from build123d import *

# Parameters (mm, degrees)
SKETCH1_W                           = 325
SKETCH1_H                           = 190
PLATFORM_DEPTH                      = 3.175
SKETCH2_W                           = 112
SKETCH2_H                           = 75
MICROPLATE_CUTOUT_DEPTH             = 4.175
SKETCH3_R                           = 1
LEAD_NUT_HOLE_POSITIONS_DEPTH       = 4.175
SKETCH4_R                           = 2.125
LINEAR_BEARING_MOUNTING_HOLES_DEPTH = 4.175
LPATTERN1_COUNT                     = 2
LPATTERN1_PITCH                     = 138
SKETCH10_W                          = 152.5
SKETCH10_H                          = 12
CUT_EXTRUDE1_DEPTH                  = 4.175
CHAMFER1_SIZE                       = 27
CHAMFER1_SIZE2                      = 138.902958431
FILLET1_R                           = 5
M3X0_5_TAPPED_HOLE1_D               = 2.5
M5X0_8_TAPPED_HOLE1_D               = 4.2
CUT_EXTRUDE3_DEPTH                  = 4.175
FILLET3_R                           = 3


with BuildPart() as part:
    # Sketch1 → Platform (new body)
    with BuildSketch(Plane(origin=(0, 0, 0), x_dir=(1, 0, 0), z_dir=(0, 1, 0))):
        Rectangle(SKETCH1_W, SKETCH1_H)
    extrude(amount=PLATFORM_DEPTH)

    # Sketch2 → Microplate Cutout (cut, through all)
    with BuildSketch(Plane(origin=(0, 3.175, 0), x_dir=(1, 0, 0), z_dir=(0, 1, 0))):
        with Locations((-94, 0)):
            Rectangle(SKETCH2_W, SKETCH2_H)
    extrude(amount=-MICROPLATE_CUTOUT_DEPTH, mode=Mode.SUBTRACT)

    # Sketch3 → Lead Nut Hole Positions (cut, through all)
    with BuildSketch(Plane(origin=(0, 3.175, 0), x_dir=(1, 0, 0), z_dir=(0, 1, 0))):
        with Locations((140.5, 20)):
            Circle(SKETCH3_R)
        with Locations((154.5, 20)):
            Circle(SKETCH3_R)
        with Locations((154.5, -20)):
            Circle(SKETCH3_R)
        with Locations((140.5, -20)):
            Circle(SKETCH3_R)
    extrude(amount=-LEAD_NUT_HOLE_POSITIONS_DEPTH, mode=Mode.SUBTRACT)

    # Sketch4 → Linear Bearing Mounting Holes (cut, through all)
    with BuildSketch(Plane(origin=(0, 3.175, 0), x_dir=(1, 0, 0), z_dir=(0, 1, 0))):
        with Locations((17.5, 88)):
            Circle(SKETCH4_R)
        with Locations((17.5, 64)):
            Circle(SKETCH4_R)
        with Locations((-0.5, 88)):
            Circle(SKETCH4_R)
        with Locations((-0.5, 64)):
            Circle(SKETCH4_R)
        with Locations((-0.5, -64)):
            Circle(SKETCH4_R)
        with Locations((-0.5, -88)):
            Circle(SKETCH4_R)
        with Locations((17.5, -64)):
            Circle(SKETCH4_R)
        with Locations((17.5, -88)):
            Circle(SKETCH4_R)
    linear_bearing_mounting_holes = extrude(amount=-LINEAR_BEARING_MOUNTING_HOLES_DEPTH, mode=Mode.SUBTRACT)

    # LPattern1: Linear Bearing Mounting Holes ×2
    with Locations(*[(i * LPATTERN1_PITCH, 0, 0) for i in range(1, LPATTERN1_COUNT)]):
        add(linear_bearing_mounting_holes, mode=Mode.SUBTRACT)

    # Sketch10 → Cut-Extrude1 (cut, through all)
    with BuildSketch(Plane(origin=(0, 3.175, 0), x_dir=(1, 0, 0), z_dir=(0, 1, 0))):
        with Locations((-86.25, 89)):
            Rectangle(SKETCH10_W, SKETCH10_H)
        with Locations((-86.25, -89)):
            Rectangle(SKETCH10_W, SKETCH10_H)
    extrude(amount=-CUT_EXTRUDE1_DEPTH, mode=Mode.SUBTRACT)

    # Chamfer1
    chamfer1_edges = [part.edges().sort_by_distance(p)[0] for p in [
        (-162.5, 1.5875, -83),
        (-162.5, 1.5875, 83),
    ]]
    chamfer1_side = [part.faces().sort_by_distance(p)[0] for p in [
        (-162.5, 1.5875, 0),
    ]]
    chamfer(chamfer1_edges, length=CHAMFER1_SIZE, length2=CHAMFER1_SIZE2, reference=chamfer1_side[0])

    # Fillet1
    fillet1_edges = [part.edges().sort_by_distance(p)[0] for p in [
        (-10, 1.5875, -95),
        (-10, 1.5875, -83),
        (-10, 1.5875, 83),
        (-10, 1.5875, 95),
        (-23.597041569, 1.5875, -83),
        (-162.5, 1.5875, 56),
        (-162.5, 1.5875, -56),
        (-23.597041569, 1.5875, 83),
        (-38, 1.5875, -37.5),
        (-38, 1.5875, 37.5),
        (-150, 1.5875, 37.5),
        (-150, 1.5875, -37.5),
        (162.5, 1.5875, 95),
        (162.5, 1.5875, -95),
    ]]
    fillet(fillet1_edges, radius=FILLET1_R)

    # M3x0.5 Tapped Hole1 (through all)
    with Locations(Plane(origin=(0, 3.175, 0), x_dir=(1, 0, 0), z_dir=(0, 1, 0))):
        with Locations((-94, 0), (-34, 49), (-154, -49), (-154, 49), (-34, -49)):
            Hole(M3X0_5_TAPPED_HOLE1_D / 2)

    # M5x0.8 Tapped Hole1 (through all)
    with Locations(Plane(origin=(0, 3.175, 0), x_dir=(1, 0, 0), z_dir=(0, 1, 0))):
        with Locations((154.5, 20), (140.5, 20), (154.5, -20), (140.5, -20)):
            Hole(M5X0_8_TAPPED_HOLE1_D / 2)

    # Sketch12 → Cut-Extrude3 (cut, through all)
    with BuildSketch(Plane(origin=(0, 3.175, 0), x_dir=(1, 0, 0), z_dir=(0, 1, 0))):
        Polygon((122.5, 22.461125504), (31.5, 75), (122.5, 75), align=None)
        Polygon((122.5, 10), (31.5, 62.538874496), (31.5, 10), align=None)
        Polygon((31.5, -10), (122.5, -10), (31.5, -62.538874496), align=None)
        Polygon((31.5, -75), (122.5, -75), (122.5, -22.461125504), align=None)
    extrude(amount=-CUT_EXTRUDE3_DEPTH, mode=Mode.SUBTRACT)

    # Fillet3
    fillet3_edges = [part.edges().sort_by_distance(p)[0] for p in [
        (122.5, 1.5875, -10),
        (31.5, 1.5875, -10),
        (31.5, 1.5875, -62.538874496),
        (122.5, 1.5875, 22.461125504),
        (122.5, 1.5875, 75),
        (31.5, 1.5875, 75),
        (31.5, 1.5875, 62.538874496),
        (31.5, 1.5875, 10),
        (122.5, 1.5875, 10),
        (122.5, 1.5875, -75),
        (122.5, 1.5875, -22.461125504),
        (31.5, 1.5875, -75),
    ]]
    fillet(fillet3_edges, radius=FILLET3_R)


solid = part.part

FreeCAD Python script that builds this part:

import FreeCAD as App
import Part
import Sketcher

V = App.Vector
Q = App.Units.Quantity


def edges_at(feature, points):
    """Names of the edges that pass closest to the given points."""
    edges = feature.Shape.Edges
    near = lambda p: min(range(len(edges)), key=lambda i: edges[i].distToShape(Part.Vertex(*p))[0])
    return sorted({f"Edge{near(p) + 1}" for p in points})

doc = App.newDocument("Part")
body = doc.addObject("PartDesign::Body", "Body")

# Sketch on XZ plane
sketch1 = body.newObject("Sketcher::SketchObject", "Sketch")
sketch1.AttachmentSupport = (doc.getObject("XZ_Plane"), [""])
sketch1.MapMode = "FlatFace"
sketch1.addGeometry(Part.LineSegment(V(-162, -95, 0), V(-162, 95, 0)), False)
sketch1.addGeometry(Part.LineSegment(V(-162, 95, 0), V(162, 95, 0)), False)
sketch1.addGeometry(Part.LineSegment(V(162, 95, 0), V(162, -95, 0)), False)
sketch1.addGeometry(Part.LineSegment(V(162, -95, 0), V(-162, -95, 0)), False)
sketch1.addConstraint(Sketcher.Constraint("Coincident", 0, 2, 1, 1))
sketch1.addConstraint(Sketcher.Constraint("Coincident", 1, 2, 2, 1))
sketch1.addConstraint(Sketcher.Constraint("Coincident", 2, 2, 3, 1))
sketch1.addConstraint(Sketcher.Constraint("Coincident", 3, 2, 0, 1))
sketch1.addConstraint(Sketcher.Constraint("Vertical", 0))
sketch1.addConstraint(Sketcher.Constraint("Horizontal", 1))
sketch1.addConstraint(Sketcher.Constraint("Vertical", 2))
sketch1.addConstraint(Sketcher.Constraint("Horizontal", 3))
sketch1.addConstraint(Sketcher.Constraint("Symmetric", 0, 2, 2, 2, -1, 1))
sketch1.addConstraint(Sketcher.Constraint("DistanceX", 1, 1, 1, 2, 325.0))
sketch1.addConstraint(Sketcher.Constraint("DistanceY", 0, 1, 0, 2, 190.0))
pad1 = body.newObject("PartDesign::Pad", "Pad")
pad1.Profile = sketch1
pad1.Length = 3.175
pad1.Reversed = True

# Sketch on XZ plane
sketch2 = body.newObject("Sketcher::SketchObject", "Sketch001")
sketch2.AttachmentSupport = (doc.getObject("XZ_Plane"), [""])
sketch2.MapMode = "FlatFace"
sketch2.AttachmentOffset = App.Placement(V(0, 0, -3.175), App.Rotation())
sketch2.addGeometry(Part.LineSegment(V(-150, -38, 0), V(-150, 38, 0)), False)
sketch2.addGeometry(Part.LineSegment(V(-150, 38, 0), V(-38, 38, 0)), False)
sketch2.addGeometry(Part.LineSegment(V(-38, 38, 0), V(-38, -38, 0)), False)
sketch2.addGeometry(Part.LineSegment(V(-38, -38, 0), V(-150, -38, 0)), False)
sketch2.addConstraint(Sketcher.Constraint("Coincident", 0, 2, 1, 1))
sketch2.addConstraint(Sketcher.Constraint("Coincident", 1, 2, 2, 1))
sketch2.addConstraint(Sketcher.Constraint("Coincident", 2, 2, 3, 1))
sketch2.addConstraint(Sketcher.Constraint("Coincident", 3, 2, 0, 1))
sketch2.addConstraint(Sketcher.Constraint("Vertical", 0))
sketch2.addConstraint(Sketcher.Constraint("Horizontal", 1))
sketch2.addConstraint(Sketcher.Constraint("Vertical", 2))
sketch2.addConstraint(Sketcher.Constraint("Horizontal", 3))
sketch2.addConstraint(Sketcher.Constraint("DistanceX", 1, 1, 1, 2, 112.0))
sketch2.addConstraint(Sketcher.Constraint("DistanceY", 0, 1, 0, 2, 75.0))
sketch2.addConstraint(Sketcher.Constraint("DistanceX", 0, 2, -1, 1, 150.0))
sketch2.addConstraint(Sketcher.Constraint("DistanceY", -1, 1, 0, 2, 37.5))
pocket1 = body.newObject("PartDesign::Pocket", "Pocket")
pocket1.Profile = sketch2
pocket1.Type = "ThroughAll"
pocket1.Reversed = True

# Sketch on XZ plane
sketch3 = body.newObject("Sketcher::SketchObject", "Sketch002")
sketch3.AttachmentSupport = (doc.getObject("XZ_Plane"), [""])
sketch3.MapMode = "FlatFace"
sketch3.AttachmentOffset = App.Placement(V(0, 0, -3.175), App.Rotation())
sketch3.addGeometry(Part.Circle(V(140.5, -20, 0), V(0, 0, 1), 1), False)
sketch3.addGeometry(Part.Circle(V(154.5, -20, 0), V(0, 0, 1), 1), False)
sketch3.addGeometry(Part.Circle(V(154.5, 20, 0), V(0, 0, 1), 1), False)
sketch3.addGeometry(Part.Circle(V(140.5, 20, 0), V(0, 0, 1), 1), False)
sketch3.addConstraint(Sketcher.Constraint("Equal", 0, 1))
sketch3.addConstraint(Sketcher.Constraint("Equal", 1, 2))
sketch3.addConstraint(Sketcher.Constraint("Equal", 2, 3))
sketch3.addConstraint(Sketcher.Constraint("Symmetric", 1, 3, 2, 3, -1))
sketch3.addConstraint(Sketcher.Constraint("Symmetric", 0, 3, 3, 3, -1))
sketch3.addConstraint(Sketcher.Constraint("Horizontal", 0, 3, 1, 3))
sketch3.addConstraint(Sketcher.Constraint("Diameter", 0, 2.0))
sketch3.addConstraint(Sketcher.Constraint("DistanceY", 0, 3, -1, 1, 20.0))
sketch3.addConstraint(Sketcher.Constraint("DistanceX", 0, 3, 1, 3, 14.0))
sketch3.addConstraint(Sketcher.Constraint("DistanceX", -1, 1, 0, 3, 140.5))
pocket2 = body.newObject("PartDesign::Pocket", "Pocket001")
pocket2.Profile = sketch3
pocket2.Type = "ThroughAll"
pocket2.Reversed = True

# Sketch on XZ plane
sketch4 = body.newObject("Sketcher::SketchObject", "Sketch003")
sketch4.AttachmentSupport = (doc.getObject("XZ_Plane"), [""])
sketch4.MapMode = "FlatFace"
sketch4.AttachmentOffset = App.Placement(V(0, 0, -3.175), App.Rotation())
sketch4.addGeometry(Part.Circle(V(17.5, -88, 0), V(0, 0, 1), 2.1), False)
sketch4.addGeometry(Part.Circle(V(17.5, -64, 0), V(0, 0, 1), 2.1), False)
sketch4.addGeometry(Part.Circle(V(-0.5, -88, 0), V(0, 0, 1), 2.1), False)
sketch4.addGeometry(Part.Circle(V(-0.5, -64, 0), V(0, 0, 1), 2.1), False)
sketch4.addGeometry(Part.Circle(V(-0.5, 64, 0), V(0, 0, 1), 2.1), False)
sketch4.addGeometry(Part.Circle(V(-0.5, 88, 0), V(0, 0, 1), 2.1), False)
sketch4.addGeometry(Part.Circle(V(17.5, 64, 0), V(0, 0, 1), 2.1), False)
sketch4.addGeometry(Part.Circle(V(17.5, 88, 0), V(0, 0, 1), 2.1), False)
sketch4.addConstraint(Sketcher.Constraint("Equal", 0, 1))
sketch4.addConstraint(Sketcher.Constraint("Equal", 1, 2))
sketch4.addConstraint(Sketcher.Constraint("Equal", 2, 3))
sketch4.addConstraint(Sketcher.Constraint("Equal", 3, 4))
sketch4.addConstraint(Sketcher.Constraint("Equal", 4, 5))
sketch4.addConstraint(Sketcher.Constraint("Equal", 5, 6))
sketch4.addConstraint(Sketcher.Constraint("Equal", 6, 7))
sketch4.addConstraint(Sketcher.Constraint("Symmetric", 3, 3, 4, 3, -1))
sketch4.addConstraint(Sketcher.Constraint("Symmetric", 2, 3, 5, 3, -1))
sketch4.addConstraint(Sketcher.Constraint("Symmetric", 1, 3, 6, 3, -1))
sketch4.addConstraint(Sketcher.Constraint("Symmetric", 0, 3, 7, 3, -1))
sketch4.addConstraint(Sketcher.Constraint("Horizontal", 0, 3, 2, 3))
sketch4.addConstraint(Sketcher.Constraint("Horizontal", 1, 3, 3, 3))
sketch4.addConstraint(Sketcher.Constraint("Vertical", 0, 3, 1, 3))
sketch4.addConstraint(Sketcher.Constraint("Vertical", 2, 3, 3, 3))
sketch4.addConstraint(Sketcher.Constraint("Diameter", 0, 4.25))
sketch4.addConstraint(Sketcher.Constraint("DistanceY", 0, 3, -1, 1, 88.0))
sketch4.addConstraint(Sketcher.Constraint("DistanceY", 1, 3, -1, 1, 64.0))
sketch4.addConstraint(Sketcher.Constraint("DistanceX", 2, 3, 0, 3, 18.0))
sketch4.addConstraint(Sketcher.Constraint("DistanceX", -1, 1, 0, 3, 17.5))
pocket3 = body.newObject("PartDesign::Pocket", "Pocket002")
pocket3.Profile = sketch4
pocket3.Type = "ThroughAll"
pocket3.Reversed = True
doc.recompute()

linearpattern = body.newObject("PartDesign::LinearPattern", "LinearPattern")
linearpattern.Originals = [pocket3]
linearpattern.Direction = (doc.getObject("X_Axis"), [""])
linearpattern.Mode = "offset"
linearpattern.Offset = 138
linearpattern.Occurrences = 2
body.Tip = linearpattern

# Sketch on XZ plane
sketch5 = body.newObject("Sketcher::SketchObject", "Sketch004")
sketch5.AttachmentSupport = (doc.getObject("XZ_Plane"), [""])
sketch5.MapMode = "FlatFace"
sketch5.AttachmentOffset = App.Placement(V(0, 0, -3.175), App.Rotation())
sketch5.addGeometry(Part.LineSegment(V(-162, -95, 0), V(-162, -83, 0)), False)
sketch5.addGeometry(Part.LineSegment(V(-162, -83, 0), V(-10, -83, 0)), False)
sketch5.addGeometry(Part.LineSegment(V(-10, -83, 0), V(-10, -95, 0)), False)
sketch5.addGeometry(Part.LineSegment(V(-10, -95, 0), V(-162, -95, 0)), False)
sketch5.addGeometry(Part.LineSegment(V(-162, 83, 0), V(-162, 95, 0)), False)
sketch5.addGeometry(Part.LineSegment(V(-162, 95, 0), V(-10, 95, 0)), False)
sketch5.addGeometry(Part.LineSegment(V(-10, 95, 0), V(-10, 83, 0)), False)
sketch5.addGeometry(Part.LineSegment(V(-10, 83, 0), V(-162, 83, 0)), False)
sketch5.addConstraint(Sketcher.Constraint("Coincident", 0, 2, 1, 1))
sketch5.addConstraint(Sketcher.Constraint("Coincident", 1, 2, 2, 1))
sketch5.addConstraint(Sketcher.Constraint("Coincident", 2, 2, 3, 1))
sketch5.addConstraint(Sketcher.Constraint("Coincident", 3, 2, 0, 1))
sketch5.addConstraint(Sketcher.Constraint("Coincident", 4, 2, 5, 1))
sketch5.addConstraint(Sketcher.Constraint("Coincident", 5, 2, 6, 1))
sketch5.addConstraint(Sketcher.Constraint("Coincident", 6, 2, 7, 1))
sketch5.addConstraint(Sketcher.Constraint("Coincident", 7, 2, 4, 1))
sketch5.addConstraint(Sketcher.Constraint("Vertical", 0))
sketch5.addConstraint(Sketcher.Constraint("Horizontal", 1))
sketch5.addConstraint(Sketcher.Constraint("Vertical", 2))
sketch5.addConstraint(Sketcher.Constraint("Horizontal", 3))
sketch5.addConstraint(Sketcher.Constraint("Vertical", 4))
sketch5.addConstraint(Sketcher.Constraint("Horizontal", 5))
sketch5.addConstraint(Sketcher.Constraint("Vertical", 6))
sketch5.addConstraint(Sketcher.Constraint("Horizontal", 7))
sketch5.addConstraint(Sketcher.Constraint("Symmetric", 3, 2, 4, 2, -1))
sketch5.addConstraint(Sketcher.Constraint("Symmetric", 1, 2, 6, 2, -1))
sketch5.addConstraint(Sketcher.Constraint("DistanceY", 0, 1, 0, 2, 12.0))
sketch5.addConstraint(Sketcher.Constraint("DistanceX", 1, 1, 1, 2, 152.5))
sketch5.addConstraint(Sketcher.Constraint("DistanceY", 0, 2, -1, 1, 83.0))
sketch5.addConstraint(Sketcher.Constraint("DistanceX", 1, 2, -1, 1, 10.0))
pocket4 = body.newObject("PartDesign::Pocket", "Pocket003")
pocket4.Profile = sketch5
pocket4.Type = "ThroughAll"
pocket4.Reversed = True
doc.recompute()

chamfer = body.newObject("PartDesign::Chamfer", "Chamfer")
chamfer.Base = (pocket4, edges_at(pocket4, [(-162.5, 1.587, -83), (-162.5, 1.587, 83)]))
chamfer.ChamferType = "Two distances"
chamfer.Size = 27
chamfer.Size2 = 138.902958
doc.recompute()

fillet = body.newObject("PartDesign::Fillet", "Fillet")
fillet.Base = (chamfer, edges_at(chamfer, [
    (-10, 1.587, -95),
    (-10, 1.587, -83),
    (-10, 1.587, 83),
    (-10, 1.587, 95),
    (-23.597, 1.587, -83),
    (-162.5, 1.587, 56),
    (-162.5, 1.587, -56),
    (-23.597, 1.587, 83),
    (-38, 1.587, -37.5),
    (-38, 1.587, 37.5),
    (-150, 1.587, 37.5),
    (-150, 1.587, -37.5),
    (162.5, 1.587, 95),
    (162.5, 1.587, -95),
]))
fillet.Radius = 5

# Sketch on XZ plane
sketch6 = body.newObject("Sketcher::SketchObject", "Sketch005")
sketch6.AttachmentSupport = (doc.getObject("XZ_Plane"), [""])
sketch6.MapMode = "FlatFace"
sketch6.AttachmentOffset = App.Placement(V(0, 0, -3.175), App.Rotation())
sketch6.addGeometry(Part.Circle(V(-94, 0, 0), V(0, 0, 1), 1.2), False)
sketch6.addGeometry(Part.Circle(V(-34, -49, 0), V(0, 0, 1), 1.2), False)
sketch6.addGeometry(Part.Circle(V(-154, 49, 0), V(0, 0, 1), 1.2), False)
sketch6.addGeometry(Part.Circle(V(-154, -49, 0), V(0, 0, 1), 1.2), False)
sketch6.addGeometry(Part.Circle(V(-34, 49, 0), V(0, 0, 1), 1.2), False)
sketch6.addConstraint(Sketcher.Constraint("Equal", 0, 1))
sketch6.addConstraint(Sketcher.Constraint("Equal", 1, 2))
sketch6.addConstraint(Sketcher.Constraint("Equal", 2, 3))
sketch6.addConstraint(Sketcher.Constraint("Equal", 3, 4))
sketch6.addConstraint(Sketcher.Constraint("Symmetric", 2, 3, 3, 3, -1))
sketch6.addConstraint(Sketcher.Constraint("Symmetric", 1, 3, 4, 3, -1))
sketch6.addConstraint(Sketcher.Constraint("PointOnObject", 0, 3, -1))
sketch6.addConstraint(Sketcher.Constraint("Horizontal", 1, 3, 3, 3))
sketch6.addConstraint(Sketcher.Constraint("Diameter", 0, 2.5))
sketch6.addConstraint(Sketcher.Constraint("DistanceX", 0, 3, -1, 1, 94.0))
sketch6.addConstraint(Sketcher.Constraint("DistanceX", 1, 3, -1, 1, 34.0))
sketch6.addConstraint(Sketcher.Constraint("DistanceY", 1, 3, -1, 1, 49.0))
sketch6.addConstraint(Sketcher.Constraint("DistanceX", 2, 3, -1, 1, 154.0))
doc.recompute()
hole = body.newObject("PartDesign::Hole", "Hole")
hole.Profile = sketch6
hole.ThreadType = "None"
hole.Diameter = 2.5
hole.DepthType = "ThroughAll"
hole.Reversed = True

# Sketch on XZ plane
sketch7 = body.newObject("Sketcher::SketchObject", "Sketch006")
sketch7.AttachmentSupport = (doc.getObject("XZ_Plane"), [""])
sketch7.MapMode = "FlatFace"
sketch7.AttachmentOffset = App.Placement(V(0, 0, -3.175), App.Rotation())
sketch7.addGeometry(Part.Circle(V(154.5, -20, 0), V(0, 0, 1), 2.1), False)
sketch7.addGeometry(Part.Circle(V(140.5, -20, 0), V(0, 0, 1), 2.1), False)
sketch7.addGeometry(Part.Circle(V(154.5, 20, 0), V(0, 0, 1), 2.1), False)
sketch7.addGeometry(Part.Circle(V(140.5, 20, 0), V(0, 0, 1), 2.1), False)
sketch7.addConstraint(Sketcher.Constraint("Equal", 0, 1))
sketch7.addConstraint(Sketcher.Constraint("Equal", 1, 2))
sketch7.addConstraint(Sketcher.Constraint("Equal", 2, 3))
sketch7.addConstraint(Sketcher.Constraint("Symmetric", 0, 3, 2, 3, -1))
sketch7.addConstraint(Sketcher.Constraint("Symmetric", 1, 3, 3, 3, -1))
sketch7.addConstraint(Sketcher.Constraint("Horizontal", 0, 3, 1, 3))
sketch7.addConstraint(Sketcher.Constraint("Diameter", 0, 4.2))
sketch7.addConstraint(Sketcher.Constraint("DistanceY", 0, 3, -1, 1, 20.0))
sketch7.addConstraint(Sketcher.Constraint("DistanceX", 1, 3, 0, 3, 14.0))
sketch7.addConstraint(Sketcher.Constraint("DistanceX", -1, 1, 0, 3, 154.5))
doc.recompute()
hole2 = body.newObject("PartDesign::Hole", "Hole001")
hole2.Profile = sketch7
hole2.ThreadType = "None"
hole2.Diameter = 4.2
hole2.DepthType = "ThroughAll"
hole2.Reversed = True

# Sketch on XZ plane
sketch8 = body.newObject("Sketcher::SketchObject", "Sketch007")
sketch8.AttachmentSupport = (doc.getObject("XZ_Plane"), [""])
sketch8.MapMode = "FlatFace"
sketch8.AttachmentOffset = App.Placement(V(0, 0, -3.175), App.Rotation())
sketch8.addGeometry(Part.LineSegment(V(32, -75, 0), V(122, -22, 0)), False)
sketch8.addGeometry(Part.LineSegment(V(122, -22, 0), V(122, -75, 0)), False)
sketch8.addGeometry(Part.LineSegment(V(122, -75, 0), V(32, -75, 0)), False)
sketch8.addGeometry(Part.LineSegment(V(122, -10, 0), V(32, -63, 0)), False)
sketch8.addGeometry(Part.LineSegment(V(32, -63, 0), V(32, -10, 0)), False)
sketch8.addGeometry(Part.LineSegment(V(32, -10, 0), V(122, -10, 0)), False)
sketch8.addGeometry(Part.LineSegment(V(122, 10, 0), V(32, 10, 0)), False)
sketch8.addGeometry(Part.LineSegment(V(32, 10, 0), V(32, 63, 0)), False)
sketch8.addGeometry(Part.LineSegment(V(32, 63, 0), V(122, 10, 0)), False)
sketch8.addGeometry(Part.LineSegment(V(32, 75, 0), V(122, 75, 0)), False)
sketch8.addGeometry(Part.LineSegment(V(122, 75, 0), V(122, 22, 0)), False)
sketch8.addGeometry(Part.LineSegment(V(122, 22, 0), V(32, 75, 0)), False)
sketch8.addConstraint(Sketcher.Constraint("Coincident", 0, 2, 1, 1))
sketch8.addConstraint(Sketcher.Constraint("Coincident", 1, 2, 2, 1))
sketch8.addConstraint(Sketcher.Constraint("Coincident", 2, 2, 0, 1))
sketch8.addConstraint(Sketcher.Constraint("Coincident", 3, 2, 4, 1))
sketch8.addConstraint(Sketcher.Constraint("Coincident", 4, 2, 5, 1))
sketch8.addConstraint(Sketcher.Constraint("Coincident", 5, 2, 3, 1))
sketch8.addConstraint(Sketcher.Constraint("Coincident", 6, 2, 7, 1))
sketch8.addConstraint(Sketcher.Constraint("Coincident", 7, 2, 8, 1))
sketch8.addConstraint(Sketcher.Constraint("Coincident", 8, 2, 6, 1))
sketch8.addConstraint(Sketcher.Constraint("Coincident", 9, 2, 10, 1))
sketch8.addConstraint(Sketcher.Constraint("Coincident", 10, 2, 11, 1))
sketch8.addConstraint(Sketcher.Constraint("Coincident", 11, 2, 9, 1))
sketch8.addConstraint(Sketcher.Constraint("Vertical", 1))
sketch8.addConstraint(Sketcher.Constraint("Horizontal", 2))
sketch8.addConstraint(Sketcher.Constraint("Vertical", 4))
sketch8.addConstraint(Sketcher.Constraint("Horizontal", 5))
sketch8.addConstraint(Sketcher.Constraint("Horizontal", 6))
sketch8.addConstraint(Sketcher.Constraint("Vertical", 7))
sketch8.addConstraint(Sketcher.Constraint("Horizontal", 9))
sketch8.addConstraint(Sketcher.Constraint("Vertical", 10))
sketch8.addConstraint(Sketcher.Constraint("Symmetric", 4, 2, 6, 2, -1))
sketch8.addConstraint(Sketcher.Constraint("Symmetric", 1, 2, 9, 2, -1))
sketch8.addConstraint(Sketcher.Constraint("Parallel", 0, 3))
sketch8.addConstraint(Sketcher.Constraint("Parallel", 8, 11))
sketch8.addConstraint(Sketcher.Constraint("Vertical", 2, 2, 3, 2))
sketch8.addConstraint(Sketcher.Constraint("Vertical", 1, 2, 5, 2))
sketch8.addConstraint(Sketcher.Constraint("Vertical", 5, 2, 8, 2))
sketch8.addConstraint(Sketcher.Constraint("Vertical", 7, 2, 11, 2))
sketch8.addConstraint(Sketcher.Constraint("Equal", 4, 7))
sketch8.addConstraint(Sketcher.Constraint("DistanceX", 2, 2, 2, 1, 91.0))
sketch8.addConstraint(Sketcher.Constraint("Angle", 0, Q("30 deg")))
sketch8.addConstraint(Sketcher.Constraint("DistanceY", 1, 2, -1, 1, 75.0))
sketch8.addConstraint(Sketcher.Constraint("DistanceY", 4, 2, -1, 1, 10.0))
sketch8.addConstraint(Sketcher.Constraint("DistanceX", -1, 1, 0, 2, 122.5))
pocket5 = body.newObject("PartDesign::Pocket", "Pocket004")
pocket5.Profile = sketch8
pocket5.Type = "ThroughAll"
pocket5.Reversed = True
doc.recompute()

fillet2 = body.newObject("PartDesign::Fillet", "Fillet001")
fillet2.Base = (pocket5, edges_at(pocket5, [
    (122.5, 1.587, -10),
    (31.5, 1.587, -10),
    (31.5, 1.587, -62.539),
    (122.5, 1.587, 22.461),
    (122.5, 1.587, 75),
    (31.5, 1.587, 75),
    (31.5, 1.587, 62.539),
    (31.5, 1.587, 10),
    (122.5, 1.587, 10),
    (122.5, 1.587, -75),
    (122.5, 1.587, -22.461),
    (31.5, 1.587, -75),
]))
fillet2.Radius = 3

doc.recompute()
